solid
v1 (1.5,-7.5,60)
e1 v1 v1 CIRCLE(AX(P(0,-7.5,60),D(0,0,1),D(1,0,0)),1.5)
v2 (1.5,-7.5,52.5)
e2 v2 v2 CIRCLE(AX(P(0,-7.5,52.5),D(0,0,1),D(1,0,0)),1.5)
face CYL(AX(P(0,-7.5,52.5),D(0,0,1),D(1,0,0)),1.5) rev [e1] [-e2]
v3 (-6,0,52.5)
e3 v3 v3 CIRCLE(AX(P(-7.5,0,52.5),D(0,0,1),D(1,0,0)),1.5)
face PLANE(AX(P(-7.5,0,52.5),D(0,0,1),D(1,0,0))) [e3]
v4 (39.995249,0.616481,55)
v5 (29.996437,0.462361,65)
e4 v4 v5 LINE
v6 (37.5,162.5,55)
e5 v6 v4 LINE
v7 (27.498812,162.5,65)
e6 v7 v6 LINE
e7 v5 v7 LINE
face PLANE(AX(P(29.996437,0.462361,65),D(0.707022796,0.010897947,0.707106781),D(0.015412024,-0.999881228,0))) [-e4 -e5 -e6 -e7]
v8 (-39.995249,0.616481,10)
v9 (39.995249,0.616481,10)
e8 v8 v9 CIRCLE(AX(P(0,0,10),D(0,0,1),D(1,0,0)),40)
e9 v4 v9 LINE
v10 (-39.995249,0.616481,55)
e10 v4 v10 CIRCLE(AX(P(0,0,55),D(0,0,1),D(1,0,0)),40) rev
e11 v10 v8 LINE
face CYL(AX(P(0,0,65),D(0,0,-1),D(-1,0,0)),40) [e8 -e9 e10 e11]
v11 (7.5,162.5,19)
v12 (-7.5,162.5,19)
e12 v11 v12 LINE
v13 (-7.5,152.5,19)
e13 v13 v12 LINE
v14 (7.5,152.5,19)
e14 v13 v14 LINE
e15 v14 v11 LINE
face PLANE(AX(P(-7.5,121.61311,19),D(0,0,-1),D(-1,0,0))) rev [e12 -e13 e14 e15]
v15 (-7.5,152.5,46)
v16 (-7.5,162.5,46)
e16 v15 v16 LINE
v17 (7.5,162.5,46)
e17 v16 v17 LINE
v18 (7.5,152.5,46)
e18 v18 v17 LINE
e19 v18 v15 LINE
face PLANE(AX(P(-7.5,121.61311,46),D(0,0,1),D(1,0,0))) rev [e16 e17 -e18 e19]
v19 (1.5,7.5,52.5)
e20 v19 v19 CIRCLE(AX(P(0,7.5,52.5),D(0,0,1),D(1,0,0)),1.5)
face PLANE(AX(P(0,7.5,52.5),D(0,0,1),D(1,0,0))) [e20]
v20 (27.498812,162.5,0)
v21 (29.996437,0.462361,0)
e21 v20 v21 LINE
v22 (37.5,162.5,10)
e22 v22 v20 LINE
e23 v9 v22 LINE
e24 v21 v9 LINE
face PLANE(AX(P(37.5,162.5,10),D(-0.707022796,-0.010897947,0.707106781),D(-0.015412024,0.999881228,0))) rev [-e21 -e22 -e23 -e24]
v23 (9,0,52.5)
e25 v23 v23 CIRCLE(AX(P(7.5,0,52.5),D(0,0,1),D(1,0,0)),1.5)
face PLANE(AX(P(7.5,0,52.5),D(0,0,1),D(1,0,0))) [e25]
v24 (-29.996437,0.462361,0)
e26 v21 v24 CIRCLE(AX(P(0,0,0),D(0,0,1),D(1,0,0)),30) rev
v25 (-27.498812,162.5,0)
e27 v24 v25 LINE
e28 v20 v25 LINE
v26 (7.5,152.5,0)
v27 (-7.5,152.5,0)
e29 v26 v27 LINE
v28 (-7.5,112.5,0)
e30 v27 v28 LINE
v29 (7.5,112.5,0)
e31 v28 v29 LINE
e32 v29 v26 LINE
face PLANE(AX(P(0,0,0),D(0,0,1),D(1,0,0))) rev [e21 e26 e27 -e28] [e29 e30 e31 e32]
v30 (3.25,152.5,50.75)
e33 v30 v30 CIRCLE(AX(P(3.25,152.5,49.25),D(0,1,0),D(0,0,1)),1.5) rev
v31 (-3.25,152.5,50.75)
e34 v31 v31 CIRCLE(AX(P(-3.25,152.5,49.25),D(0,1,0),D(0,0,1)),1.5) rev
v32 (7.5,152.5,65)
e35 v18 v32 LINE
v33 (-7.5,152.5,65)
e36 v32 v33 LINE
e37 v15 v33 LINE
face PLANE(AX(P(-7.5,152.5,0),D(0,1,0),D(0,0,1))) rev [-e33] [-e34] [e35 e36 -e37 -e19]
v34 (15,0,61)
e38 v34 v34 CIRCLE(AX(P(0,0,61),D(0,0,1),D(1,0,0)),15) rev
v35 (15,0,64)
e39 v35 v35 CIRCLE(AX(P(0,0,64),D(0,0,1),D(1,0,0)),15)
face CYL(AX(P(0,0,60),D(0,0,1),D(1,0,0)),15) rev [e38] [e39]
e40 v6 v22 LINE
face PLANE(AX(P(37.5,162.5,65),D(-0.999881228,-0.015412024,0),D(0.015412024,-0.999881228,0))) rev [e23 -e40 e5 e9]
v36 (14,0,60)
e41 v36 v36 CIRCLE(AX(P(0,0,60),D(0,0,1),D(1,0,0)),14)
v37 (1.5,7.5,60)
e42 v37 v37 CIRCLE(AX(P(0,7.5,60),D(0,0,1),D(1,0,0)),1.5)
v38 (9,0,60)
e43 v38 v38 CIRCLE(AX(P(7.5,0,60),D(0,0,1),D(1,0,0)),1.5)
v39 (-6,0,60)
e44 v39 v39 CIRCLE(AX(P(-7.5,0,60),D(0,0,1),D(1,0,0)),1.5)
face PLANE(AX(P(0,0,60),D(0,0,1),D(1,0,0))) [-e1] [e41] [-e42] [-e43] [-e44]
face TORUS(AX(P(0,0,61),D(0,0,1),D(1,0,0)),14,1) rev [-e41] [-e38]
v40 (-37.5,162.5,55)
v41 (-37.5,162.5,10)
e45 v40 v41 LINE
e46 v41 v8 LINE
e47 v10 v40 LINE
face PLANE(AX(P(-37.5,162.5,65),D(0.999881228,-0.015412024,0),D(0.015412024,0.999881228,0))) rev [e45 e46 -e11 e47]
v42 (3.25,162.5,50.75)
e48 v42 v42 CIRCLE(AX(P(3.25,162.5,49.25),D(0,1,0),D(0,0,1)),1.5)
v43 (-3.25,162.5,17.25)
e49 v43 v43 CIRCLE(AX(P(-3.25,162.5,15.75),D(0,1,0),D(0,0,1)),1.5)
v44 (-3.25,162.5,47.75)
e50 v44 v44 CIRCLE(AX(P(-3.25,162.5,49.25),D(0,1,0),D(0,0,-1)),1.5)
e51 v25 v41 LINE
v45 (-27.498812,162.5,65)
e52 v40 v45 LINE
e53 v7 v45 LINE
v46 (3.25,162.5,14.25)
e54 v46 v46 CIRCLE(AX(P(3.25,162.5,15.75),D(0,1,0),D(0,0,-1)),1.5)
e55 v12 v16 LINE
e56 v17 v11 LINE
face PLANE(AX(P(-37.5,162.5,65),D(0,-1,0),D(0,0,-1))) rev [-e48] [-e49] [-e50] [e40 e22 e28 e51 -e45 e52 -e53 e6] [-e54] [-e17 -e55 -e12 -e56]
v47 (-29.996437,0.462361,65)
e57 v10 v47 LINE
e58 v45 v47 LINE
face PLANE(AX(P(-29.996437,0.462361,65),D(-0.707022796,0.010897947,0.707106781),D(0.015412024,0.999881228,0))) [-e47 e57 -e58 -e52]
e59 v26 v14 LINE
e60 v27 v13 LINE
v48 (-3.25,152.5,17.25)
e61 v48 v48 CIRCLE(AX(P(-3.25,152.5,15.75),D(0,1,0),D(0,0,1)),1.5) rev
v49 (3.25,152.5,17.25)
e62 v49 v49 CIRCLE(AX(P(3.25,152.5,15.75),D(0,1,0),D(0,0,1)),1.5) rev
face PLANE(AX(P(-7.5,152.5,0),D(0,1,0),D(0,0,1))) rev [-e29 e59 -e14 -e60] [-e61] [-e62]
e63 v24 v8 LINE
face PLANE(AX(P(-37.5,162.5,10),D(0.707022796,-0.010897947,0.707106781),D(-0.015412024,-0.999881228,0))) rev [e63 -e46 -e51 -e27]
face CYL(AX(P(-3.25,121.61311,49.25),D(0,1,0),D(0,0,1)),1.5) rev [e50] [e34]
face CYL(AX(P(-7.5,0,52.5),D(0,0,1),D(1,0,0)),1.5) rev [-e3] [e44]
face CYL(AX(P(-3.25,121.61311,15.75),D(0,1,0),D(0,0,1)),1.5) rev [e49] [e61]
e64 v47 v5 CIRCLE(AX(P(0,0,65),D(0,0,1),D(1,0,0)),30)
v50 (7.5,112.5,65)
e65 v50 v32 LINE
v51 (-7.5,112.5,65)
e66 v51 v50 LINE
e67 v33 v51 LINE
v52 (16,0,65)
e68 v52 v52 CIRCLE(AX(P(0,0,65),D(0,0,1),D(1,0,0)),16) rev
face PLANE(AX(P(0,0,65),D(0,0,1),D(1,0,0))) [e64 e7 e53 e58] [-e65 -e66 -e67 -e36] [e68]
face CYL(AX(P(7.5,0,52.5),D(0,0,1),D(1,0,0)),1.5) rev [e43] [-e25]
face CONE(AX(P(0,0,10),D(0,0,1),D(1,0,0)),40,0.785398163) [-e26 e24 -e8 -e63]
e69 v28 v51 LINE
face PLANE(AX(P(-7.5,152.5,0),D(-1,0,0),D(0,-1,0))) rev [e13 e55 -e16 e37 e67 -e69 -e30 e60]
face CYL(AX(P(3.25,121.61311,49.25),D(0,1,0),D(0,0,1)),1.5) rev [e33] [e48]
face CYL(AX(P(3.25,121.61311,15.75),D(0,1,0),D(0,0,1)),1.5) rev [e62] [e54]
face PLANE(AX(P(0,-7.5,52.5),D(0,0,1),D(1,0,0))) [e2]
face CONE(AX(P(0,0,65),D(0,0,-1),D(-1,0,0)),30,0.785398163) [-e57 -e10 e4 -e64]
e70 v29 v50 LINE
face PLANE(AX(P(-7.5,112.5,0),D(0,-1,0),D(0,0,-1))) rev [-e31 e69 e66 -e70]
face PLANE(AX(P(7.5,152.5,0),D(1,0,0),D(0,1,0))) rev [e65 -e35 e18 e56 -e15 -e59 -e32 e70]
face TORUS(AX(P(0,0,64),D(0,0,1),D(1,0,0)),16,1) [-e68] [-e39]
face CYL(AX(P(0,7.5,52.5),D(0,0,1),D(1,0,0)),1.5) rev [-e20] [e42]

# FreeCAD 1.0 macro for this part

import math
import FreeCAD as App
import Part
import Sketcher

V = App.Vector


def edges_at(feature, points):
    """Names of the edges that pass closest to the given points."""
    edges = feature.Shape.Edges
    near = lambda p: min(range(len(edges)), key=lambda i: edges[i].distToShape(Part.Vertex(*p))[0])
    return sorted({f"Edge{near(p) + 1}" for p in points})


def add_polygon(sketch, points):
    """Adds a closed chain of lines whose ends are joined by coincident constraints."""
    first, n = sketch.GeometryCount, len(points)
    for a, b in zip(points, points[1:] + points[:1]):
        sketch.addGeometry(Part.LineSegment(App.Vector(*a, 0), App.Vector(*b, 0)), False)
    for i in range(n):
        sketch.addConstraint(Sketcher.Constraint("Coincident", first + i, 2, first + (i + 1) % n, 1))

doc = App.newDocument("Part")
body = doc.addObject("PartDesign::Body", "Body")

# Sketch on XY plane
sketch1 = body.newObject("Sketcher::SketchObject", "Sketch")
sketch1.AttachmentSupport = (doc.getObject("XY_Plane"), [""])
sketch1.MapMode = "FlatFace"
sketch1.addGeometry([
    Part.LineSegment(V(37.5, 162.5, 0), V(-37.5, 162.5, 0)),
    Part.LineSegment(V(-37.5, 162.5, 0), V(-39.995249, 0.616481, 0)),
    Part.ArcOfCircle(Part.Circle(V(0, 0, 0), V(0, 0, 1), 40), math.radians(179.116921), math.radians(360.883079)),
    Part.LineSegment(V(39.995249, 0.616481, 0), V(37.5, 162.5, 0)),
], False)
sketch1.addConstraint([
    Sketcher.Constraint("Coincident", 0, 2, 1, 1),
    Sketcher.Constraint("Tangent", 1, 2, 2, 1),
    Sketcher.Constraint("Tangent", 2, 2, 3, 1),
    Sketcher.Constraint("Coincident", 3, 2, 0, 1),
    Sketcher.Constraint("Horizontal", 0),
    Sketcher.Constraint("Coincident", 2, 3, -1, 1),
    Sketcher.Constraint("Horizontal", 1, 2, 2, 2),
    Sketcher.Constraint("Radius", 2, 40.0),
    Sketcher.Constraint("DistanceX", 0, 2, 0, 1, 75.0),
    Sketcher.Constraint("DistanceY", -1, 1, 0, 2, 162.5),
])
pad1 = body.newObject("PartDesign::Pad", "Pad")
pad1.Profile = sketch1
pad1.Length = 65
doc.recompute()

chamfer = body.newObject("PartDesign::Chamfer", "Chamfer")
chamfer.Base = (pad1, edges_at(pad1, [
    (-38.748, 81.558, 65),
    (0, -40, 65),
    (38.748, 81.558, 65),
    (0, -40, 0),
    (-38.748, 81.558, 0),
    (38.748, 81.558, 0),
]))
chamfer.Size = 10

# Sketch on XY plane
sketch2 = body.newObject("Sketcher::SketchObject", "Sketch001")
sketch2.AttachmentSupport = (doc.getObject("XY_Plane"), [""])
sketch2.MapMode = "FlatFace"
sketch2.AttachmentOffset = App.Placement(V(0, 0, 65), App.Rotation())
sketch2.addGeometry(Part.Circle(V(0, 0, 0), V(0, 0, 1), 15), False)
sketch2.addConstraint([
    Sketcher.Constraint("Coincident", 0, 3, -1, 1),
    Sketcher.Constraint("Diameter", 0, 30.0),
])
pocket1 = body.newObject("PartDesign::Pocket", "Pocket")
pocket1.Profile = sketch2
pocket1.Length = 5

# Sketch on XY plane
sketch3 = body.newObject("Sketcher::SketchObject", "Sketch002")
sketch3.AttachmentSupport = (doc.getObject("XY_Plane"), [""])
sketch3.MapMode = "FlatFace"
sketch3.AttachmentOffset = App.Placement(V(0, 0, 60), App.Rotation())
sketch3.addGeometry([
    Part.Circle(V(0, 7.5, 0), V(0, 0, 1), 1.5),
    Part.Circle(V(7.5, 0, 0), V(0, 0, 1), 1.5),
    Part.Circle(V(0, -7.5, 0), V(0, 0, 1), 1.5),
    Part.Circle(V(-7.5, 0, 0), V(0, 0, 1), 1.5),
], False)
sketch3.addConstraint([
    Sketcher.Constraint("Equal", 0, 1),
    Sketcher.Constraint("Equal", 1, 2),
    Sketcher.Constraint("Equal", 2, 3),
    Sketcher.Constraint("Symmetric", 0, 3, 2, 3, -1, 1),
    Sketcher.Constraint("Symmetric", 1, 3, 3, 3, -1, 1),
    Sketcher.Constraint("PointOnObject", 0, 3, -2),
    Sketcher.Constraint("PointOnObject", 1, 3, -1),
    Sketcher.Constraint("Diameter", 0, 3.0),
    Sketcher.Constraint("DistanceY", 2, 3, 0, 3, 15.0),
    Sketcher.Constraint("DistanceX", 3, 3, 1, 3, 15.0),
])
pocket2 = body.newObject("PartDesign::Pocket", "Pocket001")
pocket2.Profile = sketch3
pocket2.Length = 7.5
doc.recompute()

fillet = body.newObject("PartDesign::Fillet", "Fillet")
fillet.Base = (pocket2, edges_at(pocket2, [(-15, 0, 60), (-15, 0, 65)]))
fillet.Radius = 1

# Sketch on XY plane
sketch4 = body.newObject("Sketcher::SketchObject", "Sketch003")
sketch4.AttachmentSupport = (doc.getObject("XY_Plane"), [""])
sketch4.MapMode = "FlatFace"
sketch4.AttachmentOffset = App.Placement(V(0, 0, 65), App.Rotation())
add_polygon(sketch4, [(-7.5, 152.5), (-7.5, 112.5), (7.5, 112.5), (7.5, 152.5)])  # lines 0-3
sketch4.addConstraint([
    Sketcher.Constraint("Vertical", 0),
    Sketcher.Constraint("Horizontal", 1),
    Sketcher.Constraint("Vertical", 2),
    Sketcher.Constraint("Horizontal", 3),
    Sketcher.Constraint("DistanceX", 1, 1, 1, 2, 15.0),
    Sketcher.Constraint("DistanceY", 0, 2, 0, 1, 40.0),
    Sketcher.Constraint("DistanceX", 0, 2, -1, 1, 7.5),
    Sketcher.Constraint("DistanceY", -1, 1, 0, 2, 112.5),
])
pocket3 = body.newObject("PartDesign::Pocket", "Pocket002")
pocket3.Profile = sketch4
pocket3.Type = "ThroughAll"

# Sketch on XZ plane
sketch5 = body.newObject("Sketcher::SketchObject", "Sketch004")
sketch5.AttachmentSupport = (doc.getObject("XZ_Plane"), [""])
sketch5.MapMode = "FlatFace"
sketch5.AttachmentOffset = App.Placement(V(0, 0, -162.5), App.Rotation())
sketch5.addGeometry(Part.Circle(V(-3.25, 15.75, 0), V(0, 0, 1), 1.5), False)  # 0
sketch5.addGeometry(Part.Circle(V(3.25, 15.75, 0), V(0, 0, 1), 1.5), False)  # 1
sketch5.addGeometry(Part.Circle(V(3.25, 49.25, 0), V(0, 0, 1), 1.5), False)  # 2
sketch5.addGeometry(Part.Circle(V(-3.25, 49.25, 0), V(0, 0, 1), 1.5), False)  # 3
add_polygon(sketch5, [(-7.5, 19), (-7.5, 46), (7.5, 46), (7.5, 19)])  # lines 4-7
sketch5.addConstraint([
    Sketcher.Constraint("Vertical", 4),
    Sketcher.Constraint("Horizontal", 5),
    Sketcher.Constraint("Vertical", 6),
    Sketcher.Constraint("Horizontal", 7),
    Sketcher.Constraint("Equal", 0, 1),
    Sketcher.Constraint("Equal", 1, 2),
    Sketcher.Constraint("Equal", 2, 3),
    Sketcher.Constraint("Symmetric", 0, 3, 1, 3, -2),
    Sketcher.Constraint("Symmetric", 2, 3, 3, 3, -2),
    Sketcher.Constraint("Vertical", 1, 3, 2, 3),
    Sketcher.Constraint("Diameter", 0, 3.0),
    Sketcher.Constraint("DistanceX", 5, 1, 5, 2, 15.0),
    Sketcher.Constraint("DistanceY", 4, 1, 4, 2, 27.0),
    Sketcher.Constraint("DistanceY", -1, 1, 4, 2, 46.0),
    Sketcher.Constraint("DistanceX", 4, 2, -1, 1, 7.5),
    Sketcher.Constraint("DistanceX", 0, 3, 1, 3, 6.5),
    Sketcher.Constraint("DistanceY", 1, 3, 2, 3, 33.5),
    Sketcher.Constraint("DistanceY", -1, 1, 0, 3, 15.75),
])
pocket4 = body.newObject("PartDesign::Pocket", "Pocket003")
pocket4.Profile = sketch5
pocket4.Length = 10
pocket4.Reversed = True

doc.recompute()
